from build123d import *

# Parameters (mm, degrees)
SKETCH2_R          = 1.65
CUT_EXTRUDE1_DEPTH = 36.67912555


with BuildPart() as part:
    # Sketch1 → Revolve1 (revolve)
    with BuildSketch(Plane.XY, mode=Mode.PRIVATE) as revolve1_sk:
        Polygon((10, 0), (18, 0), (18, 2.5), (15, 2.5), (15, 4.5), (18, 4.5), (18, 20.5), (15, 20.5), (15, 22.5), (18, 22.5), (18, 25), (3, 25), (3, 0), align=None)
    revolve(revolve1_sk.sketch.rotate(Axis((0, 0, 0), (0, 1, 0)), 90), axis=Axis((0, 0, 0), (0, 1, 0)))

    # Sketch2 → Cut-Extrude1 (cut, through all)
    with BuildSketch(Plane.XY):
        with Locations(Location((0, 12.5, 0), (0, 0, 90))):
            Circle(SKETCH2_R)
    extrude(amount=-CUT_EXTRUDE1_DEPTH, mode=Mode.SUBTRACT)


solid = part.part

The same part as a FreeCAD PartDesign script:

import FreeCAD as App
import Part
import Sketcher

doc = App.newDocument("Part")
body = doc.addObject("PartDesign::Body", "Body")

# Sketch on XY plane
sketch1 = body.newObject("Sketcher::SketchObject", "Sketch")
sketch1.AttachmentSupport = (doc.getObject("XY_Plane"), [""])
sketch1.MapMode = "FlatFace"
sketch1.addGeometry([
    Part.LineSegment(App.Vector(18, 0, 0), App.Vector(18, 2.5, 0)),  # 0
    Part.LineSegment(App.Vector(18, 2.5, 0), App.Vector(15, 2.5, 0)),  # 1
    Part.LineSegment(App.Vector(15, 2.5, 0), App.Vector(15, 4.5, 0)),  # 2
    Part.LineSegment(App.Vector(15, 4.5, 0), App.Vector(18, 4.5, 0)),  # 3
    Part.LineSegment(App.Vector(18, 4.5, 0), App.Vector(18, 20.5, 0)),  # 4
    Part.LineSegment(App.Vector(18, 20.5, 0), App.Vector(15, 20.5, 0)),  # 5
    Part.LineSegment(App.Vector(15, 20.5, 0), App.Vector(15, 22.5, 0)),  # 6
    Part.LineSegment(App.Vector(15, 22.5, 0), App.Vector(18, 22.5, 0)),  # 7
    Part.LineSegment(App.Vector(18, 22.5, 0), App.Vector(18, 25, 0)),  # 8
    Part.LineSegment(App.Vector(18, 25, 0), App.Vector(3, 25, 0)),  # 9
    Part.LineSegment(App.Vector(3, 25, 0), App.Vector(3, 0, 0)),  # 10
    Part.LineSegment(App.Vector(3, 0, 0), App.Vector(18, 0, 0)),  # 11
], False)
sketch1.addConstraint([
    Sketcher.Constraint("Coincident", 0, 2, 1, 1),
    Sketcher.Constraint("Coincident", 1, 2, 2, 1),
    Sketcher.Constraint("Coincident", 2, 2, 3, 1),
    Sketcher.Constraint("Coincident", 3, 2, 4, 1),
    Sketcher.Constraint("Coincident", 4, 2, 5, 1),
    Sketcher.Constraint("Coincident", 5, 2, 6, 1),
    Sketcher.Constraint("Coincident", 6, 2, 7, 1),
    Sketcher.Constraint("Coincident", 7, 2, 8, 1),
    Sketcher.Constraint("Coincident", 8, 2, 9, 1),
    Sketcher.Constraint("Coincident", 9, 2, 10, 1),
    Sketcher.Constraint("Coincident", 10, 2, 11, 1),
    Sketcher.Constraint("Coincident", 11, 2, 0, 1),
    Sketcher.Constraint("Vertical", 0),
    Sketcher.Constraint("Horizontal", 1),
    Sketcher.Constraint("Vertical", 2),
    Sketcher.Constraint("Horizontal", 3),
    Sketcher.Constraint("Vertical", 4),
    Sketcher.Constraint("Horizontal", 5),
    Sketcher.Constraint("Vertical", 6),
    Sketcher.Constraint("Horizontal", 7),
    Sketcher.Constraint("Vertical", 8),
    Sketcher.Constraint("Horizontal", 9),
    Sketcher.Constraint("Vertical", 10),
    Sketcher.Constraint("Horizontal", 11),
    Sketcher.Constraint("PointOnObject", 10, 2, -1),
    Sketcher.Constraint("Vertical", 0, 2, 3, 2),
    Sketcher.Constraint("Vertical", 2, 2, 5, 2),
    Sketcher.Constraint("Vertical", 4, 2, 7, 2),
    Sketcher.Constraint("Equal", 2, 6),
    Sketcher.Constraint("Equal", 0, 8),
    Sketcher.Constraint("DistanceX", 1, 2, 1, 1, 3.0),
    Sketcher.Constraint("DistanceX", 9, 2, 9, 1, 15.0),
    Sketcher.Constraint("DistanceY", 2, 1, 2, 2, 2.0),
    Sketcher.Constraint("DistanceY", 4, 1, 4, 2, 16.0),
    Sketcher.Constraint("DistanceY", 10, 2, 10, 1, 25.0),
    Sketcher.Constraint("DistanceX", -1, 1, 0, 2, 18.0),
])
revolution = body.newObject("PartDesign::Revolution", "Revolution")
revolution.Profile = sketch1
revolution.ReferenceAxis = (sketch1, ["V_Axis"])
revolution.Angle = 360

# Sketch on XY plane
sketch2 = body.newObject("Sketcher::SketchObject", "Sketch001")
sketch2.AttachmentSupport = (doc.getObject("XY_Plane"), [""])
sketch2.MapMode = "FlatFace"
sketch2.addGeometry(Part.Circle(App.Vector(0, 12.5, 0), App.Vector(0, 0, 1), 1.6), False)
sketch2.addConstraint([
    Sketcher.Constraint("PointOnObject", 0, 3, -2),
    Sketcher.Constraint("Diameter", 0, 3.3),
    Sketcher.Constraint("DistanceY", -1, 1, 0, 3, 12.5),
])
pocket1 = body.newObject("PartDesign::Pocket", "Pocket")
pocket1.Profile = sketch2
pocket1.Type = "ThroughAll"

doc.recompute()
